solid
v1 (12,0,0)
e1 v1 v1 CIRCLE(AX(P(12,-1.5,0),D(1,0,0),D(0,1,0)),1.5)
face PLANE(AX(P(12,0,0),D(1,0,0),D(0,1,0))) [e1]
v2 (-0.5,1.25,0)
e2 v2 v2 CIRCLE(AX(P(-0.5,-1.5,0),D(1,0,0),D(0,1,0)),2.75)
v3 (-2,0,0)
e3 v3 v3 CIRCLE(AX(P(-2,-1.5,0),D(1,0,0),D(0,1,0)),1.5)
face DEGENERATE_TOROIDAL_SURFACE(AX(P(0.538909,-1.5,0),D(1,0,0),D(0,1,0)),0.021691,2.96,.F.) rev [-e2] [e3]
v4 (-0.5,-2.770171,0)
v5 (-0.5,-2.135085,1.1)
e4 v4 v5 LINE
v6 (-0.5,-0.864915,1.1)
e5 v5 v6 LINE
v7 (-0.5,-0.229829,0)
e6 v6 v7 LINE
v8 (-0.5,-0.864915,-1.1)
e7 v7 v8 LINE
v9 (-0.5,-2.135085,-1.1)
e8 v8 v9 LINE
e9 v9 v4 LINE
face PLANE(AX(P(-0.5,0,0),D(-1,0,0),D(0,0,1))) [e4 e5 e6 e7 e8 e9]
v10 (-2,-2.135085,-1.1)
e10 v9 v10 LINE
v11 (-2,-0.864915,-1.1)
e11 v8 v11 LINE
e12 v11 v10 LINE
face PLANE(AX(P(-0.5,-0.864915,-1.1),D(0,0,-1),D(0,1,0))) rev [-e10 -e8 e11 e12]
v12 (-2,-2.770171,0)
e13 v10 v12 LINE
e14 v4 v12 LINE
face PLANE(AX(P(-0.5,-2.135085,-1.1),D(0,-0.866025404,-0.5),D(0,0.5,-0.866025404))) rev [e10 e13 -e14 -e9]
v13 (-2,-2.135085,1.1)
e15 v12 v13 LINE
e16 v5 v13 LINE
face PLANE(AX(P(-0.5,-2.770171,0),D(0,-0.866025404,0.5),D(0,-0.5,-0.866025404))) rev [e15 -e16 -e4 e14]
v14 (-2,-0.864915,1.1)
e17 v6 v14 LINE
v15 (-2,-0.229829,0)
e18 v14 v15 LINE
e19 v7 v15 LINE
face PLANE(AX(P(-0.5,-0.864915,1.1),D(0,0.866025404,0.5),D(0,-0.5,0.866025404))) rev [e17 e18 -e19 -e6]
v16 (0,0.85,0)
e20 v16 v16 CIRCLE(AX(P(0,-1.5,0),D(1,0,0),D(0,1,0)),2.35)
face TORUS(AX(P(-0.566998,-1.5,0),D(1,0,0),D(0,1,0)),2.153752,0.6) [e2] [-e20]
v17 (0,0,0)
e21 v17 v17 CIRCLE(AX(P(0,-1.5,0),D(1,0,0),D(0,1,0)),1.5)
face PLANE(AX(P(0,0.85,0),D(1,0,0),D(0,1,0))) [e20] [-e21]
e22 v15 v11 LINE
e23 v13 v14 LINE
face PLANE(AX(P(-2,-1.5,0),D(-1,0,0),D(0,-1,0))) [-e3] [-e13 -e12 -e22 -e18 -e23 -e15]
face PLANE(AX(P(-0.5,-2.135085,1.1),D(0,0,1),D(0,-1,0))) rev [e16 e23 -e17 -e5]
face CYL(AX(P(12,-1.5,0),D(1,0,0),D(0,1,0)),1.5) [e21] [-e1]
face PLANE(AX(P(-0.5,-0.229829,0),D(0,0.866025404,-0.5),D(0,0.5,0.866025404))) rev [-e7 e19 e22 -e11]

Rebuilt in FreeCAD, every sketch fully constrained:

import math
import FreeCAD as App
import Part
import Sketcher
Q = App.Units.Quantity


def add_polygon(sketch, points):
    """Adds a closed chain of lines whose ends are joined by coincident constraints."""
    first, n = sketch.GeometryCount, len(points)
    for a, b in zip(points, points[1:] + points[:1]):
        sketch.addGeometry(Part.LineSegment(App.Vector(*a, 0), App.Vector(*b, 0)), False)
    for i in range(n):
        sketch.addConstraint(Sketcher.Constraint("Coincident", first + i, 2, first + (i + 1) % n, 1))

doc = App.newDocument("Part")
params = doc.addObject("Spreadsheet::Sheet", "Params")
for row, (alias, value) in enumerate([
    ("sketch1_radius", "0.6 mm"),
    ("sketch1_width", "12 mm"),
    ("sketch1_width2", "14 mm"),
    ("sketch1_radius2", "2.96 mm"),
    ("sketch1_height", "1.5 mm"),
    ("revolution_angle", "360 deg"),
    ("pocket1_length", "1.5 mm"),
], start=1):
    params.set(f"A{row}", alias)
    params.set(f"B{row}", "=" + value)
    params.setAlias(f"B{row}", alias)

body = doc.addObject("PartDesign::Body", "Body")

# Sketch on XY plane
sketch1 = body.newObject("Sketcher::SketchObject", "Sketch")
sketch1.AttachmentSupport = (doc.getObject("XY_Plane"), [""])
sketch1.MapMode = "FlatFace"
sketch1.addGeometry([
    Part.LineSegment(App.Vector(12, 0, 0), App.Vector(0, 0, 0)),  # 0
    Part.LineSegment(App.Vector(0, 0, 0), App.Vector(0, 0.8, 0)),  # 1
    Part.ArcOfCircle(Part.Circle(App.Vector(-0.6, 0.7, 0), App.Vector(0, 0, 1), 0.6), math.radians(19), math.radians(84)),  # 2
    Part.ArcOfCircle(Part.Circle(App.Vector(0.5, -1.5, 0), App.Vector(0, 0, 1), 3), math.radians(111), math.radians(149)),  # 3
    Part.LineSegment(App.Vector(-2, 0, 0), App.Vector(-2, -1.5, 0)),  # 4
    Part.LineSegment(App.Vector(-2, -1.5, 0), App.Vector(12, -1.5, 0)),  # 5
    Part.LineSegment(App.Vector(12, -1.5, 0), App.Vector(12, 0, 0)),  # 6
], False)
sketch1.addGeometry(Part.LineSegment(App.Vector(12, -1.5, 0), App.Vector(-2, -1.5, 0)), True)  # axis
sketch1.addConstraint([
    Sketcher.Constraint("Coincident", 0, 2, 1, 1),
    Sketcher.Constraint("Coincident", 1, 2, 2, 1),
    Sketcher.Constraint("Coincident", 2, 2, 3, 1),
    Sketcher.Constraint("Coincident", 3, 2, 4, 1),
    Sketcher.Constraint("Coincident", 4, 2, 5, 1),
    Sketcher.Constraint("Coincident", 5, 2, 6, 1),
    Sketcher.Constraint("Coincident", 6, 2, 0, 1),
    Sketcher.Constraint("Horizontal", 0),
    Sketcher.Constraint("Vertical", 1),
    Sketcher.Constraint("Vertical", 4),
    Sketcher.Constraint("Horizontal", 5),
    Sketcher.Constraint("Vertical", 6),
    Sketcher.Constraint("Horizontal", 7),
    Sketcher.Constraint("Coincident", 0, 2, -1, 1),
    Sketcher.Constraint("Coincident", 7, 1, 5, 2),
    Sketcher.Constraint("PointOnObject", 3, 2, -1),
    Sketcher.Constraint("Vertical", 3, 2, 7, 2),
    Sketcher.Constraint("Radius", 2, 0.6),
    Sketcher.Constraint("DistanceX", 0, 2, 0, 1, 12.0),
    Sketcher.Constraint("DistanceX", 5, 1, 5, 2, 14.0),
    Sketcher.Constraint("Radius", 3, 2.96),
    Sketcher.Constraint("DistanceY", 4, 2, 4, 1, 1.5),
    Sketcher.Constraint("DistanceY", 1, 1, 1, 2, 0.85),
    Sketcher.Constraint("DistanceX", 2, 2, -1, 1, 0.5),
    Sketcher.Constraint("DistanceY", 1, 2, 2, 2, 0.4),
])
sketch1.setExpression("Constraints[17]", "Params.sketch1_radius")
sketch1.setExpression("Constraints[18]", "Params.sketch1_width")
sketch1.setExpression("Constraints[19]", "Params.sketch1_width2")
sketch1.setExpression("Constraints[20]", "Params.sketch1_radius2")
sketch1.setExpression("Constraints[21]", "Params.sketch1_height")
revolution = body.newObject("PartDesign::Revolution", "Revolution")
revolution.Profile = sketch1
revolution.ReferenceAxis = (sketch1, ["Axis0"])
revolution.setExpression("Angle", "Params.revolution_angle")

# Sketch on YZ plane
sketch2 = body.newObject("Sketcher::SketchObject", "Sketch001")
sketch2.AttachmentSupport = (doc.getObject("YZ_Plane"), [""])
sketch2.MapMode = "FlatFace"
sketch2.AttachmentOffset = App.Placement(App.Vector(0, 0, -2), App.Rotation())
add_polygon(sketch2, [(-0.2, 0), (-0.9, -1.1), (-2.1, -1.1), (-2.8, 0), (-2.1, 1.1), (-0.9, 1.1)])  # lines 0-5
sketch2.addConstraint([
    Sketcher.Constraint("Horizontal", 1),
    Sketcher.Constraint("Horizontal", 4),
    Sketcher.Constraint("Symmetric", 1, 2, 3, 2, -1),
    Sketcher.Constraint("PointOnObject", 2, 2, -1),
    Sketcher.Constraint("PointOnObject", 5, 2, -1),
    Sketcher.Constraint("Parallel", 0, 3),
    Sketcher.Constraint("Parallel", 2, 5),
    Sketcher.Constraint("Angle", 0, Q("-120 deg")),
    Sketcher.Constraint("DistanceY", 0, 2, -1, 1, 1.1),
    Sketcher.Constraint("DistanceX", 1, 2, 1, 1, 1.270171),
    Sketcher.Constraint("DistanceX", 2, 2, -1, 1, 2.770171),
])
pocket1 = body.newObject("PartDesign::Pocket", "Pocket")
pocket1.Profile = sketch2
pocket1.setExpression("Length", "Params.pocket1_length")
pocket1.Reversed = True

doc.recompute()
